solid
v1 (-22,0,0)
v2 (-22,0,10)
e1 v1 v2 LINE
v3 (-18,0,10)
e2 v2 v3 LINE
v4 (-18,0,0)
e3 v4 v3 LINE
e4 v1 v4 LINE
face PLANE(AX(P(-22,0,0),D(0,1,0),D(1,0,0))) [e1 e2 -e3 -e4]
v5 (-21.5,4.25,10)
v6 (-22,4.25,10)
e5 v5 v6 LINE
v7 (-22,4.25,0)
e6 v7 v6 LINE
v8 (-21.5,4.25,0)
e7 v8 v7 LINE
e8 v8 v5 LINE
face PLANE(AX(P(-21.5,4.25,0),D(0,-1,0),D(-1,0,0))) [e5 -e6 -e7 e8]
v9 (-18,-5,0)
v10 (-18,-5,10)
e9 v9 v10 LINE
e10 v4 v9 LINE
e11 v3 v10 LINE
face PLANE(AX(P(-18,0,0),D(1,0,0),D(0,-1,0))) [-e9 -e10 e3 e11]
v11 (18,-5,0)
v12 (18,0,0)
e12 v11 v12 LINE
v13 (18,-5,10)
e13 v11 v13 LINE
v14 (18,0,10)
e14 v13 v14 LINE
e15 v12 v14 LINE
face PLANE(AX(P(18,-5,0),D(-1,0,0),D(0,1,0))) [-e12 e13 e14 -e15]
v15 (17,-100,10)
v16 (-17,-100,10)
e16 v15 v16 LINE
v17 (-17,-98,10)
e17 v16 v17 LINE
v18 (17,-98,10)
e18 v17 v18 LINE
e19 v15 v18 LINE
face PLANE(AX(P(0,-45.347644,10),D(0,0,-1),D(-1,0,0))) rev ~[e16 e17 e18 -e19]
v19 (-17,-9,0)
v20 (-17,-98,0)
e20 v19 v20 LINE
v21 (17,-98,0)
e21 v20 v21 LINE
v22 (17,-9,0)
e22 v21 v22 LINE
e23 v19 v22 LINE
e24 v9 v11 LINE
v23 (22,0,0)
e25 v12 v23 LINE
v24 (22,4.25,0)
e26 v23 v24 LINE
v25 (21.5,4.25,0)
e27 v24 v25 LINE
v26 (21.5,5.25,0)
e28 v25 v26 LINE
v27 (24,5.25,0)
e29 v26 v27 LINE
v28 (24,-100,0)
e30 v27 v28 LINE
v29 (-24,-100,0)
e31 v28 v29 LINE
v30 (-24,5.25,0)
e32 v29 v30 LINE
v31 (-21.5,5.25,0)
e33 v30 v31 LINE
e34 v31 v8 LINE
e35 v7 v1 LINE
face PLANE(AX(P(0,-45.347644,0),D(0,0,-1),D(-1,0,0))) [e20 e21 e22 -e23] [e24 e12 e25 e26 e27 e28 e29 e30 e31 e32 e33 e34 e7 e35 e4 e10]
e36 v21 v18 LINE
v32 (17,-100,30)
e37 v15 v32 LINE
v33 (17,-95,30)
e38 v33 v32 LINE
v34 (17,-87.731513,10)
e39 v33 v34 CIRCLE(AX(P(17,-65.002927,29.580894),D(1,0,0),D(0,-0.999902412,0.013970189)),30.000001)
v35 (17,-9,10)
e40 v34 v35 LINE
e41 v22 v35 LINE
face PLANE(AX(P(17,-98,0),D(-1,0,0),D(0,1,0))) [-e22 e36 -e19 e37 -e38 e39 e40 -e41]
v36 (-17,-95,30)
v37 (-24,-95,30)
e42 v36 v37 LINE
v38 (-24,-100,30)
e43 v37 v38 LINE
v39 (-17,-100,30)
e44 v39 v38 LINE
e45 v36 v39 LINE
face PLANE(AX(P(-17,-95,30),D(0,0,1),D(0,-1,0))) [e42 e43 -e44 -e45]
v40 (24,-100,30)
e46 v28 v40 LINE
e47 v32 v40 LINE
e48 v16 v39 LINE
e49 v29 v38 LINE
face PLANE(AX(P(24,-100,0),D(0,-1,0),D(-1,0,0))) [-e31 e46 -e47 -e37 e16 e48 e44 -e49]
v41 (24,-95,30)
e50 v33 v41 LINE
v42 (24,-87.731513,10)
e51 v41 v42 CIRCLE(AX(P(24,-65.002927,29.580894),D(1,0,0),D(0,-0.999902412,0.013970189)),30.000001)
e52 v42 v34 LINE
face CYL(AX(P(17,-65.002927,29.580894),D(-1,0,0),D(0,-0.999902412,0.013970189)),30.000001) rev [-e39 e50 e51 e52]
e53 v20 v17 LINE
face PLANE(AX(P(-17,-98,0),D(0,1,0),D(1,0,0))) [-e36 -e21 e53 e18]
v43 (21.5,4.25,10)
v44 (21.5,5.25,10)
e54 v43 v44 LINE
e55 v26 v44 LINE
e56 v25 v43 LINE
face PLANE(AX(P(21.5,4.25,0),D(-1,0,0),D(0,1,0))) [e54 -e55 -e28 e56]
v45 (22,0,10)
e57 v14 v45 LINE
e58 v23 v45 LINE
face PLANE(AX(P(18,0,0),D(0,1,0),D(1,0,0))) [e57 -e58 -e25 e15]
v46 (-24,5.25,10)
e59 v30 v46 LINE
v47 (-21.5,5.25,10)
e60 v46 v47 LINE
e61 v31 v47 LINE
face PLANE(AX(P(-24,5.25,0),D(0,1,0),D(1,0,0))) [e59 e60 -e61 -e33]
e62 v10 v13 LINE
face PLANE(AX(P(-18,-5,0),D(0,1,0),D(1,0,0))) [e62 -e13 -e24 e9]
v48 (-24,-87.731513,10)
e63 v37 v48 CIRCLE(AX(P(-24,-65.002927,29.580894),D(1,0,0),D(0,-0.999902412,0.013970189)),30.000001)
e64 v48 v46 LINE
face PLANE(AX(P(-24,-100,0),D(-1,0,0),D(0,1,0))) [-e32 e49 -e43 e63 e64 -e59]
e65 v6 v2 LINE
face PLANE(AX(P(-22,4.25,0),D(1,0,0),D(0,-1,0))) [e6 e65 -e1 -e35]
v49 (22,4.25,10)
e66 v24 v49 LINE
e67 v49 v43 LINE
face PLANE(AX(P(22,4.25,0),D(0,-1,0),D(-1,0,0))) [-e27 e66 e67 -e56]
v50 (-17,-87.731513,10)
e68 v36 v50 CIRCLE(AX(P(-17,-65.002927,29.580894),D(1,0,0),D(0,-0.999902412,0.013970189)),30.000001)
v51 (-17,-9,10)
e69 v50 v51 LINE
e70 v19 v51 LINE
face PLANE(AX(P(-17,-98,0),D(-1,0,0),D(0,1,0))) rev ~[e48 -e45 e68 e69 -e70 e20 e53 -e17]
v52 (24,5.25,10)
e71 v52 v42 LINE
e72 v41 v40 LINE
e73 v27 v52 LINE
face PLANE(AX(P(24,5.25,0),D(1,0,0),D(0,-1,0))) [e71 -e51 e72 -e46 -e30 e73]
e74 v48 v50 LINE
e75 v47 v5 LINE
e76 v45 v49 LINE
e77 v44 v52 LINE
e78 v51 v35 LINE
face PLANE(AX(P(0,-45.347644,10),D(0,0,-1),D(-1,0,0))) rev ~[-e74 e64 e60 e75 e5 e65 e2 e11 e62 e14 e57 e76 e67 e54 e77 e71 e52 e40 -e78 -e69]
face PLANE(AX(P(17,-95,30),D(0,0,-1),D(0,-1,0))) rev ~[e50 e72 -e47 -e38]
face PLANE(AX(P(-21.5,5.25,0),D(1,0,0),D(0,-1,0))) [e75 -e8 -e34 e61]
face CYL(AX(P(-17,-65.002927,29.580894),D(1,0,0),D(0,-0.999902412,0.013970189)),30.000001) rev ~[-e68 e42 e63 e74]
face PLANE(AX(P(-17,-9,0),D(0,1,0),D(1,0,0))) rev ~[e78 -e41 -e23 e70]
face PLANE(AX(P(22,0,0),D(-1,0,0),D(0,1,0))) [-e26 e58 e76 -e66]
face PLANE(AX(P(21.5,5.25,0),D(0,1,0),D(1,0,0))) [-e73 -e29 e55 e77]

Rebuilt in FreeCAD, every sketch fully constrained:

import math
import FreeCAD as App
import Part
import Sketcher
from FreeCAD import Vector

doc = App.newDocument("Part")
body = doc.addObject("PartDesign::Body", "Body")

# Sketch on XY plane
sketch1 = doc.addObject("Sketcher::SketchObject", "Sketch")
body.addObject(sketch1)
sketch1.AttachmentSupport = (doc.XY_Plane, [""])
sketch1.MapMode = "FlatFace"
sketch1.addGeometry(Part.LineSegment(Vector(-18, 0, 0), Vector(-22, 0, 0)), False)
sketch1.addGeometry(Part.LineSegment(Vector(-22, 0, 0), Vector(-22, 4.2, 0)), False)
sketch1.addGeometry(Part.LineSegment(Vector(-22, 4.2, 0), Vector(-21.5, 4.2, 0)), False)
sketch1.addGeometry(Part.LineSegment(Vector(-21.5, 4.2, 0), Vector(-21.5, 5.2, 0)), False)
sketch1.addGeometry(Part.LineSegment(Vector(-21.5, 5.2, 0), Vector(-24, 5.2, 0)), False)
sketch1.addGeometry(Part.LineSegment(Vector(-24, 5.2, 0), Vector(-24, -100, 0)), False)
sketch1.addGeometry(Part.LineSegment(Vector(-24, -100, 0), Vector(24, -100, 0)), False)
sketch1.addGeometry(Part.LineSegment(Vector(24, -100, 0), Vector(24, 5.2, 0)), False)
sketch1.addGeometry(Part.LineSegment(Vector(24, 5.2, 0), Vector(21.5, 5.2, 0)), False)
sketch1.addGeometry(Part.LineSegment(Vector(21.5, 5.2, 0), Vector(21.5, 4.2, 0)), False)
sketch1.addGeometry(Part.LineSegment(Vector(21.5, 4.2, 0), Vector(22, 4.2, 0)), False)
sketch1.addGeometry(Part.LineSegment(Vector(22, 4.2, 0), Vector(22, 0, 0)), False)
sketch1.addGeometry(Part.LineSegment(Vector(22, 0, 0), Vector(18, 0, 0)), False)
sketch1.addGeometry(Part.LineSegment(Vector(18, 0, 0), Vector(18, -5, 0)), False)
sketch1.addGeometry(Part.LineSegment(Vector(18, -5, 0), Vector(-18, -5, 0)), False)
sketch1.addGeometry(Part.LineSegment(Vector(-18, -5, 0), Vector(-18, 0, 0)), False)
sketch1.addGeometry(Part.LineSegment(Vector(-17, -98, 0), Vector(-17, -9, 0)), False)
sketch1.addGeometry(Part.LineSegment(Vector(-17, -9, 0), Vector(17, -9, 0)), False)
sketch1.addGeometry(Part.LineSegment(Vector(17, -9, 0), Vector(17, -98, 0)), False)
sketch1.addGeometry(Part.LineSegment(Vector(17, -98, 0), Vector(-17, -98, 0)), False)
sketch1.addConstraint(Sketcher.Constraint("Coincident", 0, 2, 1, 1))
sketch1.addConstraint(Sketcher.Constraint("Coincident", 1, 2, 2, 1))
sketch1.addConstraint(Sketcher.Constraint("Coincident", 2, 2, 3, 1))
sketch1.addConstraint(Sketcher.Constraint("Coincident", 3, 2, 4, 1))
sketch1.addConstraint(Sketcher.Constraint("Coincident", 4, 2, 5, 1))
sketch1.addConstraint(Sketcher.Constraint("Coincident", 5, 2, 6, 1))
sketch1.addConstraint(Sketcher.Constraint("Coincident", 6, 2, 7, 1))
sketch1.addConstraint(Sketcher.Constraint("Coincident", 7, 2, 8, 1))
sketch1.addConstraint(Sketcher.Constraint("Coincident", 8, 2, 9, 1))
sketch1.addConstraint(Sketcher.Constraint("Coincident", 9, 2, 10, 1))
sketch1.addConstraint(Sketcher.Constraint("Coincident", 10, 2, 11, 1))
sketch1.addConstraint(Sketcher.Constraint("Coincident", 11, 2, 12, 1))
sketch1.addConstraint(Sketcher.Constraint("Coincident", 12, 2, 13, 1))
sketch1.addConstraint(Sketcher.Constraint("Coincident", 13, 2, 14, 1))
sketch1.addConstraint(Sketcher.Constraint("Coincident", 14, 2, 15, 1))
sketch1.addConstraint(Sketcher.Constraint("Coincident", 15, 2, 0, 1))
sketch1.addConstraint(Sketcher.Constraint("Coincident", 16, 2, 17, 1))
sketch1.addConstraint(Sketcher.Constraint("Coincident", 17, 2, 18, 1))
sketch1.addConstraint(Sketcher.Constraint("Coincident", 18, 2, 19, 1))
sketch1.addConstraint(Sketcher.Constraint("Coincident", 19, 2, 16, 1))
sketch1.addConstraint(Sketcher.Constraint("Horizontal", 0))
sketch1.addConstraint(Sketcher.Constraint("Vertical", 1))
sketch1.addConstraint(Sketcher.Constraint("Horizontal", 2))
sketch1.addConstraint(Sketcher.Constraint("Vertical", 3))
sketch1.addConstraint(Sketcher.Constraint("Horizontal", 4))
sketch1.addConstraint(Sketcher.Constraint("Vertical", 5))
sketch1.addConstraint(Sketcher.Constraint("Horizontal", 6))
sketch1.addConstraint(Sketcher.Constraint("Vertical", 7))
sketch1.addConstraint(Sketcher.Constraint("Horizontal", 8))
sketch1.addConstraint(Sketcher.Constraint("Vertical", 9))
sketch1.addConstraint(Sketcher.Constraint("Horizontal", 10))
sketch1.addConstraint(Sketcher.Constraint("Vertical", 11))
sketch1.addConstraint(Sketcher.Constraint("Horizontal", 12))
sketch1.addConstraint(Sketcher.Constraint("Vertical", 13))
sketch1.addConstraint(Sketcher.Constraint("Horizontal", 14))
sketch1.addConstraint(Sketcher.Constraint("Vertical", 15))
sketch1.addConstraint(Sketcher.Constraint("Vertical", 16))
sketch1.addConstraint(Sketcher.Constraint("Horizontal", 17))
sketch1.addConstraint(Sketcher.Constraint("Vertical", 18))
sketch1.addConstraint(Sketcher.Constraint("Horizontal", 19))
sketch1.addConstraint(Sketcher.Constraint("Symmetric", 0, 2, 11, 2, -1, 1))
sketch1.addConstraint(Sketcher.Constraint("Symmetric", 4, 2, 7, 2, -2))
sketch1.addConstraint(Sketcher.Constraint("Symmetric", 2, 2, 9, 2, -2))
sketch1.addConstraint(Sketcher.Constraint("Symmetric", 12, 2, 15, 2, -2))
sketch1.addConstraint(Sketcher.Constraint("DistanceX", 0, 2, 0, 1, 4.0))
sketch1.addConstraint(Sketcher.Constraint("DistanceX", 6, 1, 6, 2, 48.0))
sketch1.addConstraint(Sketcher.Constraint("DistanceX", 14, 2, 14, 1, 36.0))
sketch1.addConstraint(Sketcher.Constraint("DistanceX", 17, 1, 17, 2, 34.0))
sketch1.addConstraint(Sketcher.Constraint("DistanceY", 3, 1, 3, 2, 1.0))
sketch1.addConstraint(Sketcher.Constraint("DistanceY", 13, 2, 13, 1, 5.0))
sketch1.addConstraint(Sketcher.Constraint("DistanceY", 16, 1, 16, 2, 89.0))
sketch1.addConstraint(Sketcher.Constraint("DistanceX", 2, 1, 2, 2, 0.5))
sketch1.addConstraint(Sketcher.Constraint("DistanceY", 5, 2, -1, 1, 100.0))
sketch1.addConstraint(Sketcher.Constraint("DistanceX", 16, 2, -1, 1, 17.0))
sketch1.addConstraint(Sketcher.Constraint("DistanceY", 16, 2, -1, 1, 9.0))
sketch1.addConstraint(Sketcher.Constraint("DistanceY", 1, 1, 1, 2, 4.25))
pad1 = doc.addObject("PartDesign::Pad", "Pad")
body.addObject(pad1)
pad1.Profile = sketch1
pad1.Length = 10

# Sketch on YZ plane
sketch2 = doc.addObject("Sketcher::SketchObject", "Sketch001")
body.addObject(sketch2)
sketch2.AttachmentSupport = (doc.YZ_Plane, [""])
sketch2.MapMode = "FlatFace"
sketch2.AttachmentOffset = App.Placement(Vector(0, 0, -17), App.Rotation())
sketch2.addGeometry(Part.LineSegment(Vector(-100, 30, 0), Vector(-100, 0, 0)), False)
sketch2.addGeometry(Part.LineSegment(Vector(-100, 0, 0), Vector(-70, 0, 0)), False)
sketch2.addGeometry(Part.ArcOfCircle(Part.Circle(Vector(-65, 30, 0), Vector(0, 0, 1), 30), math.radians(179), math.radians(260)), False)
sketch2.addGeometry(Part.LineSegment(Vector(-95, 30, 0), Vector(-100, 30, 0)), False)
sketch2.addConstraint(Sketcher.Constraint("Coincident", 0, 2, 1, 1))
sketch2.addConstraint(Sketcher.Constraint("Coincident", 1, 2, 2, 2))
sketch2.addConstraint(Sketcher.Constraint("Coincident", 2, 1, 3, 1))
sketch2.addConstraint(Sketcher.Constraint("Coincident", 3, 2, 0, 1))
sketch2.addConstraint(Sketcher.Constraint("Vertical", 0))
sketch2.addConstraint(Sketcher.Constraint("Horizontal", 1))
sketch2.addConstraint(Sketcher.Constraint("Horizontal", 3))
sketch2.addConstraint(Sketcher.Constraint("PointOnObject", 0, 2, -1))
sketch2.addConstraint(Sketcher.Constraint("Equal", 1, 0))
sketch2.addConstraint(Sketcher.Constraint("Radius", 2, 30.000001))
sketch2.addConstraint(Sketcher.Constraint("DistanceX", 1, 1, 1, 2, 30.0))
sketch2.addConstraint(Sketcher.Constraint("DistanceX", 3, 2, 3, 1, 5.0))
sketch2.addConstraint(Sketcher.Constraint("DistanceX", 0, 2, -1, 1, 100.0))
pad2 = doc.addObject("PartDesign::Pad", "Pad001")
body.addObject(pad2)
pad2.Profile = sketch2
pad2.Length = 7
pad2.Reversed = True

# Sketch on YZ plane
sketch3 = doc.addObject("Sketcher::SketchObject", "Sketch002")
body.addObject(sketch3)
sketch3.AttachmentSupport = (doc.YZ_Plane, [""])
sketch3.MapMode = "FlatFace"
sketch3.AttachmentOffset = App.Placement(Vector(0, 0, 17), App.Rotation())
sketch3.addGeometry(Part.LineSegment(Vector(-100, 30, 0), Vector(-100, 0, 0)), False)
sketch3.addGeometry(Part.LineSegment(Vector(-100, 0, 0), Vector(-70, 0, 0)), False)
sketch3.addGeometry(Part.ArcOfCircle(Part.Circle(Vector(-65, 30, 0), Vector(0, 0, 1), 30), math.radians(179), math.radians(260)), False)
sketch3.addGeometry(Part.LineSegment(Vector(-95, 30, 0), Vector(-100, 30, 0)), False)
sketch3.addConstraint(Sketcher.Constraint("Coincident", 0, 2, 1, 1))
sketch3.addConstraint(Sketcher.Constraint("Coincident", 1, 2, 2, 2))
sketch3.addConstraint(Sketcher.Constraint("Coincident", 2, 1, 3, 1))
sketch3.addConstraint(Sketcher.Constraint("Coincident", 3, 2, 0, 1))
sketch3.addConstraint(Sketcher.Constraint("Vertical", 0))
sketch3.addConstraint(Sketcher.Constraint("Horizontal", 1))
sketch3.addConstraint(Sketcher.Constraint("Horizontal", 3))
sketch3.addConstraint(Sketcher.Constraint("PointOnObject", 0, 2, -1))
sketch3.addConstraint(Sketcher.Constraint("Equal", 1, 0))
sketch3.addConstraint(Sketcher.Constraint("Radius", 2, 30.000001))
sketch3.addConstraint(Sketcher.Constraint("DistanceX", 1, 1, 1, 2, 30.0))
sketch3.addConstraint(Sketcher.Constraint("DistanceX", 3, 2, 3, 1, 5.0))
sketch3.addConstraint(Sketcher.Constraint("DistanceX", 0, 2, -1, 1, 100.0))
pad3 = doc.addObject("PartDesign::Pad", "Pad002")
body.addObject(pad3)
pad3.Profile = sketch3
pad3.Length = 7

doc.recompute()
